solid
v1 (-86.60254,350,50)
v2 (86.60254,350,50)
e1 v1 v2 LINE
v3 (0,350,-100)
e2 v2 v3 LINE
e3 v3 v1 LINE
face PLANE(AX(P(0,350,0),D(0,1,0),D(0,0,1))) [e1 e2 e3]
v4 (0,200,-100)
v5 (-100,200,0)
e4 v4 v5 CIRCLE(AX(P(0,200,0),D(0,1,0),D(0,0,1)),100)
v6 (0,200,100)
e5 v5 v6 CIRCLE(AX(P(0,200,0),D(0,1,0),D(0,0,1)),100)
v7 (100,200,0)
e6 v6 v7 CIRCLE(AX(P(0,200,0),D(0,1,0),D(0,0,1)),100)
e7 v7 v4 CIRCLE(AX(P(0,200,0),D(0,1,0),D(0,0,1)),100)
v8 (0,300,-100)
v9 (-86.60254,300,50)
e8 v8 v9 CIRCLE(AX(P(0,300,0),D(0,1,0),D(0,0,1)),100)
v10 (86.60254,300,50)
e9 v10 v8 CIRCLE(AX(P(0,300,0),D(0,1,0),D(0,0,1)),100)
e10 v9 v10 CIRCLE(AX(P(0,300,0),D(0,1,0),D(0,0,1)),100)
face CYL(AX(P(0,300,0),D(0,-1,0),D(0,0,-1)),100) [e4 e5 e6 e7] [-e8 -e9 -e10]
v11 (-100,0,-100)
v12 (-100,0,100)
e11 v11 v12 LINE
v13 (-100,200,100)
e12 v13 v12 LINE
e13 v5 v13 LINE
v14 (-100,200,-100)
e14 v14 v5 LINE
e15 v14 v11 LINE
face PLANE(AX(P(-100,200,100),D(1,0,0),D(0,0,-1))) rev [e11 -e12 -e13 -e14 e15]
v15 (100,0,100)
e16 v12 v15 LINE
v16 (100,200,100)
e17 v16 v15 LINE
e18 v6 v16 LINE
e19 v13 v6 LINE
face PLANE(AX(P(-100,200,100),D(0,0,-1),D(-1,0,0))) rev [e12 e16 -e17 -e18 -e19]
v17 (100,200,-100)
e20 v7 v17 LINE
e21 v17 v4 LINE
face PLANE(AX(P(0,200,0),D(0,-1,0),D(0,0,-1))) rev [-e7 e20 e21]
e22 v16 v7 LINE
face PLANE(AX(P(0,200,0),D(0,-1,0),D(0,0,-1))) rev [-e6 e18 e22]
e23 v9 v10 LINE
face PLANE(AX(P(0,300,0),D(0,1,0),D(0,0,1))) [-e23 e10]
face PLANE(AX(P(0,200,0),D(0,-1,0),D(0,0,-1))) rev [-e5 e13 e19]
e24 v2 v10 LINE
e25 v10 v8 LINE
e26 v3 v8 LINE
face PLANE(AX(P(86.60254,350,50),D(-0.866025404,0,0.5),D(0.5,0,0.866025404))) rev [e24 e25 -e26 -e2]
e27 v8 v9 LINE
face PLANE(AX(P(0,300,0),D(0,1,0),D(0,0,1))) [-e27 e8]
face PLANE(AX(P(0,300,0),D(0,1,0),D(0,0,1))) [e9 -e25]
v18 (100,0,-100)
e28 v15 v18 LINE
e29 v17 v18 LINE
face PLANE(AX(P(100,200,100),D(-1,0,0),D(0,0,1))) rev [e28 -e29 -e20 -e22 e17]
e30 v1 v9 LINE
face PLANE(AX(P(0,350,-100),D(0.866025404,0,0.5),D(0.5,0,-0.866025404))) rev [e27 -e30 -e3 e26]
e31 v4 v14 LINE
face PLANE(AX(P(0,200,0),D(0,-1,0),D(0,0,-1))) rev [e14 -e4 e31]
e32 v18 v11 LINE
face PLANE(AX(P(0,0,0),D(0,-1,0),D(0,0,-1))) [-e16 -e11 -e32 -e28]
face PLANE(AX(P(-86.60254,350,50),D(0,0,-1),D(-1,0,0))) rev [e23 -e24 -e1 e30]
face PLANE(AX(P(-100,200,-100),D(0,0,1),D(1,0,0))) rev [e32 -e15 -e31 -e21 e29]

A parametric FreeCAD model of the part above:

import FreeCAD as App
import Part
import Sketcher
Q = App.Units.Quantity


def add_polygon(sketch, points):
    """Adds a closed chain of lines whose ends are joined by coincident constraints."""
    first, n = sketch.GeometryCount, len(points)
    for a, b in zip(points, points[1:] + points[:1]):
        sketch.addGeometry(Part.LineSegment(App.Vector(*a, 0), App.Vector(*b, 0)), False)
    for i in range(n):
        sketch.addConstraint(Sketcher.Constraint("Coincident", first + i, 2, first + (i + 1) % n, 1))

doc = App.newDocument("Part")
body = doc.addObject("PartDesign::Body", "Body")

sketch1 = body.newObject("Sketcher::SketchObject", "Sketch")
sketch1.AttachmentSupport = (doc.getObject("XZ_Plane"), [""])
sketch1.MapMode = "FlatFace"
add_polygon(sketch1, [(-100, -100), (-100, 100), (100, 100), (100, -100)])
sketch1.addConstraint([
    Sketcher.Constraint("Vertical", 0),
    Sketcher.Constraint("Horizontal", 1),
    Sketcher.Constraint("Vertical", 2),
    Sketcher.Constraint("Horizontal", 3),
    Sketcher.Constraint("Symmetric", 0, 2, 2, 2, -1, 1),
    Sketcher.Constraint("Equal", 3, 0),
    Sketcher.Constraint("DistanceX", 1, 1, 1, 2, 200.0),
])
pad1 = body.newObject("PartDesign::Pad", "Pad")
pad1.Profile = sketch1
pad1.Length = 200
pad1.Reversed = True

sketch2 = body.newObject("Sketcher::SketchObject", "Sketch001")
sketch2.AttachmentSupport = (doc.getObject("XZ_Plane"), [""])
sketch2.MapMode = "FlatFace"
sketch2.AttachmentOffset = App.Placement(App.Vector(0, 0, -200), App.Rotation())
sketch2.addGeometry(Part.Circle(App.Vector(0, 0, 0), App.Vector(0, 0, 1), 100), False)
sketch2.addConstraint([
    Sketcher.Constraint("Coincident", 0, 3, -1, 1),
    Sketcher.Constraint("Diameter", 0, 200.0),
])
pad2 = body.newObject("PartDesign::Pad", "Pad001")
pad2.Profile = sketch2
pad2.Length = 100
pad2.Reversed = True

sketch3 = body.newObject("Sketcher::SketchObject", "Sketch002")
sketch3.AttachmentSupport = (doc.getObject("XZ_Plane"), [""])
sketch3.MapMode = "FlatFace"
sketch3.AttachmentOffset = App.Placement(App.Vector(0, 0, -300), App.Rotation())
add_polygon(sketch3, [(0, -100), (-87, 50), (87, 50)])
sketch3.addConstraint([
    Sketcher.Constraint("Horizontal", 1),
    Sketcher.Constraint("PointOnObject", 2, 2, -2),
    Sketcher.Constraint("Equal", 0, 2),
    Sketcher.Constraint("Angle", 0, Q("120 deg")),
    Sketcher.Constraint("DistanceY", -1, 1, 0, 2, 50.0),
    Sketcher.Constraint("DistanceY", 2, 2, -1, 1, 100.0),
])
pad3 = body.newObject("PartDesign::Pad", "Pad002")
pad3.Profile = sketch3
pad3.Length = 50
pad3.Reversed = True

doc.recompute()
